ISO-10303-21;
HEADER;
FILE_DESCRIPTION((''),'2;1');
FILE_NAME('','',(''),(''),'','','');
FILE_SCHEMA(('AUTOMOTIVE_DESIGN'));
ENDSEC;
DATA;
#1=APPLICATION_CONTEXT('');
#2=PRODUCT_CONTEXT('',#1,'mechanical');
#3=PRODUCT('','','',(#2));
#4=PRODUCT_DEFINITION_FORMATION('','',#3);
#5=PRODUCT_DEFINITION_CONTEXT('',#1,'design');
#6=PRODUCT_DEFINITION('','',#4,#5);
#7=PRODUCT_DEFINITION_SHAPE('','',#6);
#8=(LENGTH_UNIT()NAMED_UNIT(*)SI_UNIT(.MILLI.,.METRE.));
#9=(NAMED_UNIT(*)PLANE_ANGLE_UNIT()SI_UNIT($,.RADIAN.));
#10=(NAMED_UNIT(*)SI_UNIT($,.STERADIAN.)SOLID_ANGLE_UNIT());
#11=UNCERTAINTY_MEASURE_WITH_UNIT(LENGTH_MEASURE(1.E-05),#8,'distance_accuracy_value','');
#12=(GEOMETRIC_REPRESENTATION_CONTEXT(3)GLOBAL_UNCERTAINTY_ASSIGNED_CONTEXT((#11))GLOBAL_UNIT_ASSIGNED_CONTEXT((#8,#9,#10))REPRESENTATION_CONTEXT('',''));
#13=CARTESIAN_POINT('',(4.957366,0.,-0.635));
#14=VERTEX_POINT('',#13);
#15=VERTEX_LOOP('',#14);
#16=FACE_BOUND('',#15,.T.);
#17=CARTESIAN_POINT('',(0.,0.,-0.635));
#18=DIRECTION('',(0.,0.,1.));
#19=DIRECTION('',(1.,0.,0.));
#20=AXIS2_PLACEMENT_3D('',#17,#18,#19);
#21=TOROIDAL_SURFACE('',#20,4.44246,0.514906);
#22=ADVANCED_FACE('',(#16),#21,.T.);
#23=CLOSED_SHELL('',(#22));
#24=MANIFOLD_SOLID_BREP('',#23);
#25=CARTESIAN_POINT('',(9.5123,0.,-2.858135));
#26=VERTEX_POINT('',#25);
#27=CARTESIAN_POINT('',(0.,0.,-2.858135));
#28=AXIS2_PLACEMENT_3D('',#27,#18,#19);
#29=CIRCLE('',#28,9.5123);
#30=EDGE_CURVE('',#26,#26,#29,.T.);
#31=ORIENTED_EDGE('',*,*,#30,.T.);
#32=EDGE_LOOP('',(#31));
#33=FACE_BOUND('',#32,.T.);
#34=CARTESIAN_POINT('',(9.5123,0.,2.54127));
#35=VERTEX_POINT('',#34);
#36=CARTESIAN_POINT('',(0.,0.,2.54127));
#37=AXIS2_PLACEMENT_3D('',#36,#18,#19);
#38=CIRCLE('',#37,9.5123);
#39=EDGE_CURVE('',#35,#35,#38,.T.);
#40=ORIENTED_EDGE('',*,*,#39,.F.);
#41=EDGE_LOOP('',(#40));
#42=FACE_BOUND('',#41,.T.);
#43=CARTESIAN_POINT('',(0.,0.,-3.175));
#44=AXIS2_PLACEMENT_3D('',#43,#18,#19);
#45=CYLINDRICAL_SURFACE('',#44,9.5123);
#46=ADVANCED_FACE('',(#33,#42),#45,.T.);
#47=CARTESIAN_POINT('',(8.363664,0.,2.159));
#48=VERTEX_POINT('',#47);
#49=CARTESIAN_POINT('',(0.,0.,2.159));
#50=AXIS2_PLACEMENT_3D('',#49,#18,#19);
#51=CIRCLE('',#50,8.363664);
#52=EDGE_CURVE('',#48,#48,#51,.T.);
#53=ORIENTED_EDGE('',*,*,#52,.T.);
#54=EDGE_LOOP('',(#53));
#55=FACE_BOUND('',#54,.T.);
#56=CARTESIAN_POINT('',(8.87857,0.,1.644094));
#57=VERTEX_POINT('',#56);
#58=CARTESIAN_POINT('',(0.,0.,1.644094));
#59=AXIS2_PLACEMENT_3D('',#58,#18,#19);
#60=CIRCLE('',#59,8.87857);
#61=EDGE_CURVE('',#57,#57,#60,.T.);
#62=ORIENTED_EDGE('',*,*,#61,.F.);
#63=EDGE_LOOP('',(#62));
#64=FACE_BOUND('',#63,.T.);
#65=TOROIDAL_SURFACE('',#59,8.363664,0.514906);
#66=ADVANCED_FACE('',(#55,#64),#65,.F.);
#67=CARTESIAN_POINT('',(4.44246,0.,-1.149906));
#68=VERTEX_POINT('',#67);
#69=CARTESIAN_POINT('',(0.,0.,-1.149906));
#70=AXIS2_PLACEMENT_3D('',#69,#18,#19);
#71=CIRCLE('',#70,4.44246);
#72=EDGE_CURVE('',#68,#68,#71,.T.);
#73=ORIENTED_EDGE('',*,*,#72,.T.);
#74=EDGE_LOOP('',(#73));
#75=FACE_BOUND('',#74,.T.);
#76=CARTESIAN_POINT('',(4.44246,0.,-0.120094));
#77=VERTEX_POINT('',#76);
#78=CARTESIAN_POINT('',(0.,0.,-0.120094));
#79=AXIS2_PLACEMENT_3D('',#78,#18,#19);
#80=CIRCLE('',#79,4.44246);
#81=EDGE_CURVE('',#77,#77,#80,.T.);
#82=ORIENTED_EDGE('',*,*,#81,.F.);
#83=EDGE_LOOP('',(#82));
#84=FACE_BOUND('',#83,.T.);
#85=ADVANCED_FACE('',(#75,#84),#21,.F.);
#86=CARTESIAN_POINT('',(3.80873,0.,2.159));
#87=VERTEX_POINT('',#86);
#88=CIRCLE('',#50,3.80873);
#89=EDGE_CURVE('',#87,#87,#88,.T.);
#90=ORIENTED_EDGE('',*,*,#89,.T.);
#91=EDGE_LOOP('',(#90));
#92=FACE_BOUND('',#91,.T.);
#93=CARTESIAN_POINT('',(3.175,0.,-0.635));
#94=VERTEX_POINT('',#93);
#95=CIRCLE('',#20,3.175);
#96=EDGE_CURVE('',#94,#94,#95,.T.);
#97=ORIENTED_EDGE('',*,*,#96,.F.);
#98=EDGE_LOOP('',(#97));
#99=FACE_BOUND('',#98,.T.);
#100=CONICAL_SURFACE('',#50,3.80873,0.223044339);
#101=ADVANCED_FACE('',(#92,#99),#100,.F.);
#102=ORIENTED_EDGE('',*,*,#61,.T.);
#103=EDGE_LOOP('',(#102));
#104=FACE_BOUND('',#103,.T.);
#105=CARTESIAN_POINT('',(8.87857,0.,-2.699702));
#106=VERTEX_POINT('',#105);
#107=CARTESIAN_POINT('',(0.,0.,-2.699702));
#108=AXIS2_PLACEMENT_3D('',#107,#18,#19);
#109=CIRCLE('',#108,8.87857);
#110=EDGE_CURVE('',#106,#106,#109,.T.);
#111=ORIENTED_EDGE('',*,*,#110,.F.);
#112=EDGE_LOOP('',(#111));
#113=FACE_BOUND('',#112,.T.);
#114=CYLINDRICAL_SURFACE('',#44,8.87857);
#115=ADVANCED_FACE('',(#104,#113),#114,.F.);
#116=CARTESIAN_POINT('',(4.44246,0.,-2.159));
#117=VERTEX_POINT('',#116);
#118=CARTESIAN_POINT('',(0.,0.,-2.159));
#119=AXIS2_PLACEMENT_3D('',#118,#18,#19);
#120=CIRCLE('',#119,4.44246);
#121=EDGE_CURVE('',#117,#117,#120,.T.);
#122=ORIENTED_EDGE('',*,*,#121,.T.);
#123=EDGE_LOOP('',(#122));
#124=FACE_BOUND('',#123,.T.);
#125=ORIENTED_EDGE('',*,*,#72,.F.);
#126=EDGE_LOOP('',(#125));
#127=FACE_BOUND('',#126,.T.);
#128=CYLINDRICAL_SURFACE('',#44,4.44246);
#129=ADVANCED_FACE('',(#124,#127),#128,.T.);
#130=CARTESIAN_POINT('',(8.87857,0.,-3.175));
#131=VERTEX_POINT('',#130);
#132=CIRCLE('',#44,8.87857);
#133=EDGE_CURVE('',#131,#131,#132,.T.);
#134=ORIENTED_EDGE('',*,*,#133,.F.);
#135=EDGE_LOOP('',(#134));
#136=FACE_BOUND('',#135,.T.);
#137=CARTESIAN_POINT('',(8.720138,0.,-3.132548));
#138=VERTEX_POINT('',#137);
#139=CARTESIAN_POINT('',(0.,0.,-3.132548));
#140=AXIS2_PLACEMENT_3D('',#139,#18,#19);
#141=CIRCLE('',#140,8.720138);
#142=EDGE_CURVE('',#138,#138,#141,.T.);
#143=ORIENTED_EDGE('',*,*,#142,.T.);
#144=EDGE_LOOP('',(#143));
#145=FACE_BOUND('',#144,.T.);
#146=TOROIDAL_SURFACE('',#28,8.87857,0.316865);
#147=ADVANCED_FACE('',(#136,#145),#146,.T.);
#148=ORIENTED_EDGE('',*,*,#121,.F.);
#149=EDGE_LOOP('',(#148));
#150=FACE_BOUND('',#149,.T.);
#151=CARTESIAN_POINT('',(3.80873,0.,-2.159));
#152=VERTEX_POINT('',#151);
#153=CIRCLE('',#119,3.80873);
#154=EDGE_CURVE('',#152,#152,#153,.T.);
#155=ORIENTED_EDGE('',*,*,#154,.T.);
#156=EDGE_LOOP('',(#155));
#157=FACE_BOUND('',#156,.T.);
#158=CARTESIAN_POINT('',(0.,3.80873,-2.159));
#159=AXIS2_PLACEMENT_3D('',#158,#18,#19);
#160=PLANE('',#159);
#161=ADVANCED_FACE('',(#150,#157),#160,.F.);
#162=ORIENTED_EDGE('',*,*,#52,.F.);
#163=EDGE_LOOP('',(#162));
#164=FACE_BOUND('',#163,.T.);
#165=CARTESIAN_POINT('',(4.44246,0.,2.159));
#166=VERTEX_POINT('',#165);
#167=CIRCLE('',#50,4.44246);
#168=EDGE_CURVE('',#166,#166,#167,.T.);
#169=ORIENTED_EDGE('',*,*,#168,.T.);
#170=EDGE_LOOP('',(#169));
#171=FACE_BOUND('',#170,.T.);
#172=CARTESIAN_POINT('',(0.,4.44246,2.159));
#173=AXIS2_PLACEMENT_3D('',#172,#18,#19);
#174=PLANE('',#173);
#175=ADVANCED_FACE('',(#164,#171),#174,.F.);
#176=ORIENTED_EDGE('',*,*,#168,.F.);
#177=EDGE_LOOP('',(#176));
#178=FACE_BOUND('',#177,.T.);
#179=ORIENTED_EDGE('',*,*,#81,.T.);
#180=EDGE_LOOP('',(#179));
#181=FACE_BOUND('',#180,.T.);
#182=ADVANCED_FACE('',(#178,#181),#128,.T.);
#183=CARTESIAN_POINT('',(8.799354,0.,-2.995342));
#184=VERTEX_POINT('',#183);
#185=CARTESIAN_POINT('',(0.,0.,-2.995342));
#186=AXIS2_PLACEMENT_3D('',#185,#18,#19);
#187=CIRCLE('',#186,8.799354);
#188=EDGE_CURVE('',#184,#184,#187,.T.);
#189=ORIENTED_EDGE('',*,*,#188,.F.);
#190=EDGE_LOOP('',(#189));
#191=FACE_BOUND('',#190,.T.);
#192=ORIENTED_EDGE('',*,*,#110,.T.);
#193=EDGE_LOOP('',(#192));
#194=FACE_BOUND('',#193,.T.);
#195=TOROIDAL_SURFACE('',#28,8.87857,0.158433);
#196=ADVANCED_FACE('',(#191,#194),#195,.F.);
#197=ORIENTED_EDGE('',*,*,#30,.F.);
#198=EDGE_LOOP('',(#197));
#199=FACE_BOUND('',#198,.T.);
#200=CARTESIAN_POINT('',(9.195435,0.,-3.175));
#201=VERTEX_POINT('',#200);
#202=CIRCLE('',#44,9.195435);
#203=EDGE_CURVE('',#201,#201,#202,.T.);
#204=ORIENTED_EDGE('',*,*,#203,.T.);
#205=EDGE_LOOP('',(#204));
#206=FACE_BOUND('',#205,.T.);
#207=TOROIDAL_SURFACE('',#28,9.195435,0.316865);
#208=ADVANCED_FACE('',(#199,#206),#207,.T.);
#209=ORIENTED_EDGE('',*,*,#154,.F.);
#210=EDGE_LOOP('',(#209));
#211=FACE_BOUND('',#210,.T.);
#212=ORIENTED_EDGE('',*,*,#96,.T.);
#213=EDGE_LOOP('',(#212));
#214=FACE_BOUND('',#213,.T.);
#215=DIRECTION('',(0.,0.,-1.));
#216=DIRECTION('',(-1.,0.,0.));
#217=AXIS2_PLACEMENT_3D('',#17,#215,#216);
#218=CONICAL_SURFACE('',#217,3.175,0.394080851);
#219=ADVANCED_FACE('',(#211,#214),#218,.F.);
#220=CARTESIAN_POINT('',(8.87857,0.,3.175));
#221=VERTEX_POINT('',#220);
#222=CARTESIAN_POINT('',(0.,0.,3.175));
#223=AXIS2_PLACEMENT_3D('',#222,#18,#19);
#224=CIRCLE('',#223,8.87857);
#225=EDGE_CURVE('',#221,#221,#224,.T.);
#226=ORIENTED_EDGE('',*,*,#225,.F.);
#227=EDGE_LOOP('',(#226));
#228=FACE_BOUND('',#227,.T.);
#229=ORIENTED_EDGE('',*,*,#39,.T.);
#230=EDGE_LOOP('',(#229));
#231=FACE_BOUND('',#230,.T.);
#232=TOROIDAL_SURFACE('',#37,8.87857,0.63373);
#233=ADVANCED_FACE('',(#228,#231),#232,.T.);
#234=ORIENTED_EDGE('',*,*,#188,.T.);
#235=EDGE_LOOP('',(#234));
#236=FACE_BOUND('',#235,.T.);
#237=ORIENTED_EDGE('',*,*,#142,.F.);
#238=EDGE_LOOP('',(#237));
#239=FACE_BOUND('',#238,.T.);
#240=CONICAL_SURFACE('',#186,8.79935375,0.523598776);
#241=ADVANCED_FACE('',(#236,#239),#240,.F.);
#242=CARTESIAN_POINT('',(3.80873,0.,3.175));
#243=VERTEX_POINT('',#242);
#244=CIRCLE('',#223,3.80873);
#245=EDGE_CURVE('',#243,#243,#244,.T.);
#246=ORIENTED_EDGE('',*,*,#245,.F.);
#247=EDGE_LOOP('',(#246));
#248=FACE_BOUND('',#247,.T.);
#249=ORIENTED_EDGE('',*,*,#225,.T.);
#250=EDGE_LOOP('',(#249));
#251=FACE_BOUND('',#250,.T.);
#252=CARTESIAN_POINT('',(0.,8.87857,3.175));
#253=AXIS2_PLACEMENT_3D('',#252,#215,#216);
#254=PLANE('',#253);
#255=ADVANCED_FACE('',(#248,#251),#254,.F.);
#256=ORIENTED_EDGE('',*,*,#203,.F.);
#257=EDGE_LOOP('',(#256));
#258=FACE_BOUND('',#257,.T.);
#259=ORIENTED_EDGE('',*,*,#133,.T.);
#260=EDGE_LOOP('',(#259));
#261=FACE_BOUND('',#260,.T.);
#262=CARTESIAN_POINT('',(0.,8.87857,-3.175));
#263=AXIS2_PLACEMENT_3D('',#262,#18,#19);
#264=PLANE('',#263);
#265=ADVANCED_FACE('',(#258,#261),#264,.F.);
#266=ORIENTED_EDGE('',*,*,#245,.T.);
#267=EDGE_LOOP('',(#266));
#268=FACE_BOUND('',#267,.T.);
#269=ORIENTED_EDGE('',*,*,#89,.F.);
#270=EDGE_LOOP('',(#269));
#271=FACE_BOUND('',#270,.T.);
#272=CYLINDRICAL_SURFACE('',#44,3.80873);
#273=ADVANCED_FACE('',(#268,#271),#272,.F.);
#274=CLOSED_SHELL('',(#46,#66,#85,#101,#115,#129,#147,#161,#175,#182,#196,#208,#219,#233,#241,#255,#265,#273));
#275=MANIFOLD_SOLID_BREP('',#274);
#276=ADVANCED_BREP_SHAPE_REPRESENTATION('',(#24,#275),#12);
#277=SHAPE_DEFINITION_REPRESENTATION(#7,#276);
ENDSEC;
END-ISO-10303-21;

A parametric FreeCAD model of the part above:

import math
import FreeCAD as App
import Part
import Sketcher
from FreeCAD import Vector
Q = App.Units.Quantity

doc = App.newDocument("Part")
params = doc.addObject("Spreadsheet::Sheet", "Params")
for row, (alias, value) in enumerate([
    ("sketch1_height", "0.04 in"),
    ("revolution_angle", "360 deg"),
    ("revolution2_angle", "360 deg"),
], start=1):
    params.set(f"A{row}", alias)
    params.set(f"B{row}", "=" + value)
    params.setAlias(f"B{row}", alias)

body = doc.addObject("PartDesign::Body", "Body")

# Sketch on YZ plane
sketch1 = body.newObject("Sketcher::SketchObject", "Sketch")
sketch1.AttachmentSupport = (doc.getObject("YZ_Plane"), [""])
sketch1.MapMode = "FlatFace"
sketch1.addGeometry(Part.LineSegment(Vector(8.88, 3.17, 0), Vector(3.81, 3.17, 0)), False)
sketch1.addGeometry(Part.LineSegment(Vector(3.81, 3.17, 0), Vector(3.81, 2.16, 0)), False)
sketch1.addGeometry(Part.LineSegment(Vector(3.81, 2.16, 0), Vector(3.17, -0.64, 0)), False)
sketch1.addGeometry(Part.LineSegment(Vector(3.17, -0.64, 0), Vector(3.81, -2.16, 0)), False)
sketch1.addGeometry(Part.LineSegment(Vector(3.81, -2.16, 0), Vector(4.44, -2.16, 0)), False)
sketch1.addGeometry(Part.LineSegment(Vector(4.44, -2.16, 0), Vector(4.44, -1.15, 0)), False)
sketch1.addGeometry(Part.ArcOfCircle(Part.Circle(Vector(4.44, -0.64, 0), Vector(0, 0, 1), 0.51), math.radians(90), math.radians(270)), False)
sketch1.addGeometry(Part.LineSegment(Vector(4.44, -0.12, 0), Vector(4.44, 2.16, 0)), False)
sketch1.addGeometry(Part.LineSegment(Vector(4.44, 2.16, 0), Vector(8.36, 2.16, 0)), False)
sketch1.addGeometry(Part.ArcOfCircle(Part.Circle(Vector(8.36, 1.64, 0), Vector(0, 0, 1), 0.51), math.radians(0), math.radians(90)), False)
sketch1.addGeometry(Part.LineSegment(Vector(8.88, 1.64, 0), Vector(8.88, -2.7, 0)), False)
sketch1.addGeometry(Part.ArcOfCircle(Part.Circle(Vector(8.88, -2.86, 0), Vector(0, 0, 1), 0.16), math.radians(-120), math.radians(90)), False)
sketch1.addGeometry(Part.LineSegment(Vector(8.8, -3, 0), Vector(8.72, -3.13, 0)), False)
sketch1.addGeometry(Part.ArcOfCircle(Part.Circle(Vector(8.88, -2.86, 0), Vector(0, 0, 1), 0.32), math.radians(-120), math.radians(-90)), False)
sketch1.addGeometry(Part.LineSegment(Vector(8.88, -3.17, 0), Vector(9.2, -3.17, 0)), False)
sketch1.addGeometry(Part.ArcOfCircle(Part.Circle(Vector(9.2, -2.86, 0), Vector(0, 0, 1), 0.32), math.radians(-90), math.radians(0)), False)
sketch1.addGeometry(Part.LineSegment(Vector(9.51, -2.86, 0), Vector(9.51, 2.54, 0)), False)
sketch1.addGeometry(Part.ArcOfCircle(Part.Circle(Vector(8.88, 2.54, 0), Vector(0, 0, 1), 0.63), math.radians(0), math.radians(90)), False)
sketch1.addConstraint(Sketcher.Constraint("Coincident", 0, 2, 1, 1))
sketch1.addConstraint(Sketcher.Constraint("Coincident", 1, 2, 2, 1))
sketch1.addConstraint(Sketcher.Constraint("Coincident", 2, 2, 3, 1))
sketch1.addConstraint(Sketcher.Constraint("Coincident", 3, 2, 4, 1))
sketch1.addConstraint(Sketcher.Constraint("Coincident", 4, 2, 5, 1))
sketch1.addConstraint(Sketcher.Constraint("Coincident", 5, 2, 6, 2))
sketch1.addConstraint(Sketcher.Constraint("Coincident", 6, 1, 7, 1))
sketch1.addConstraint(Sketcher.Constraint("Coincident", 7, 2, 8, 1))
sketch1.addConstraint(Sketcher.Constraint("Tangent", 8, 2, 9, 2))
sketch1.addConstraint(Sketcher.Constraint("Tangent", 9, 1, 10, 1))
sketch1.addConstraint(Sketcher.Constraint("Coincident", 10, 2, 11, 2))
sketch1.addConstraint(Sketcher.Constraint("Coincident", 11, 1, 12, 1))
sketch1.addConstraint(Sketcher.Constraint("Coincident", 12, 2, 13, 1))
sketch1.addConstraint(Sketcher.Constraint("Tangent", 13, 2, 14, 1))
sketch1.addConstraint(Sketcher.Constraint("Tangent", 14, 2, 15, 1))
sketch1.addConstraint(Sketcher.Constraint("Tangent", 15, 2, 16, 1))
sketch1.addConstraint(Sketcher.Constraint("Tangent", 16, 2, 17, 1))
sketch1.addConstraint(Sketcher.Constraint("Tangent", 17, 2, 0, 1))
sketch1.addConstraint(Sketcher.Constraint("Horizontal", 0))
sketch1.addConstraint(Sketcher.Constraint("Vertical", 1))
sketch1.addConstraint(Sketcher.Constraint("Horizontal", 4))
sketch1.addConstraint(Sketcher.Constraint("Vertical", 5))
sketch1.addConstraint(Sketcher.Constraint("Vertical", 7))
sketch1.addConstraint(Sketcher.Constraint("Horizontal", 8))
sketch1.addConstraint(Sketcher.Constraint("Vertical", 10))
sketch1.addConstraint(Sketcher.Constraint("Horizontal", 14))
sketch1.addConstraint(Sketcher.Constraint("Vertical", 16))
sketch1.addConstraint(Sketcher.Constraint("Coincident", 13, 3, 11, 3))
sketch1.addConstraint(Sketcher.Constraint("Equal", 6, 9))
sketch1.addConstraint(Sketcher.Constraint("Equal", 13, 15))
sketch1.addConstraint(Sketcher.Constraint("Symmetric", 1, 2, 3, 2, -1))
sketch1.addConstraint(Sketcher.Constraint("Symmetric", 4, 2, 7, 2, -1))
sketch1.addConstraint(Sketcher.Constraint("Symmetric", 13, 2, 17, 2, -1))
sketch1.addConstraint(Sketcher.Constraint("Horizontal", 6, 3, 2, 2))
sketch1.addConstraint(Sketcher.Constraint("Vertical", 6, 3, 4, 2))
sketch1.addConstraint(Sketcher.Constraint("Vertical", 17, 3, 9, 1))
sketch1.addConstraint(Sketcher.Constraint("Angle", 12, Q("-120 deg")))
sketch1.addConstraint(Sketcher.Constraint("DistanceY", 1, 2, 1, 1, Q("0.04 in")))
sketch1.addConstraint(Sketcher.Constraint("DistanceY", 6, 3, 0, 2, Q("0.15 in")))
sketch1.addConstraint(Sketcher.Constraint("DistanceY", 3, 2, 6, 3, Q("0.06 in")))
sketch1.addConstraint(Sketcher.Constraint("DistanceX", 0, 2, 0, 1, Q("0.1996 in")))
sketch1.addConstraint(Sketcher.Constraint("DistanceX", -1, 1, 2, 2, Q("0.125 in")))
sketch1.addConstraint(Sketcher.Constraint("Radius", 17, Q("0.63373 mm")))
sketch1.addConstraint(Sketcher.Constraint("DistanceX", -1, 1, 6, 3, Q("0.1749 in")))
sketch1.addConstraint(Sketcher.Constraint("DistanceX", -1, 1, 15, 2, Q("0.3745 in")))
sketch1.addConstraint(Sketcher.Constraint("Radius", 6, Q("0.514906 mm")))
sketch1.addConstraint(Sketcher.Constraint("Radius", 11, Q("0.158433 mm")))
sketch1.addConstraint(Sketcher.Constraint("Radius", 13, Q("0.316865 mm")))
sketch1.addConstraint(Sketcher.Constraint("DistanceY", 11, 1, -1, 1, Q("2.995342 mm")))
sketch1.setExpression("Constraints[37]", "Params.sketch1_height")
revolution = body.newObject("PartDesign::Revolution", "Revolution")
revolution.Profile = sketch1
revolution.ReferenceAxis = (sketch1, ["V_Axis"])
revolution.setExpression("Angle", "Params.revolution_angle")
body2 = doc.addObject("PartDesign::Body", "Body001")

# Sketch on YZ plane
sketch2 = body2.newObject("Sketcher::SketchObject", "Sketch001")
sketch2.AttachmentSupport = (doc.getObject("YZ_Plane001"), [""])
sketch2.MapMode = "FlatFace"
sketch2.addGeometry(Part.Circle(Vector(4.4, -0.6, 0), Vector(0, 0, 1), 0.5), False)
sketch2.addConstraint(Sketcher.Constraint("Diameter", 0, Q("1.029811 mm")))
sketch2.addConstraint(Sketcher.Constraint("DistanceY", 0, 3, -1, 1, Q("0.025 in")))
sketch2.addConstraint(Sketcher.Constraint("DistanceX", -1, 1, 0, 3, Q("0.1749 in")))
revolution2 = body2.newObject("PartDesign::Revolution", "Revolution001")
revolution2.Profile = sketch2
revolution2.ReferenceAxis = (sketch2, ["V_Axis"])
revolution2.setExpression("Angle", "Params.revolution2_angle")

doc.recompute()
